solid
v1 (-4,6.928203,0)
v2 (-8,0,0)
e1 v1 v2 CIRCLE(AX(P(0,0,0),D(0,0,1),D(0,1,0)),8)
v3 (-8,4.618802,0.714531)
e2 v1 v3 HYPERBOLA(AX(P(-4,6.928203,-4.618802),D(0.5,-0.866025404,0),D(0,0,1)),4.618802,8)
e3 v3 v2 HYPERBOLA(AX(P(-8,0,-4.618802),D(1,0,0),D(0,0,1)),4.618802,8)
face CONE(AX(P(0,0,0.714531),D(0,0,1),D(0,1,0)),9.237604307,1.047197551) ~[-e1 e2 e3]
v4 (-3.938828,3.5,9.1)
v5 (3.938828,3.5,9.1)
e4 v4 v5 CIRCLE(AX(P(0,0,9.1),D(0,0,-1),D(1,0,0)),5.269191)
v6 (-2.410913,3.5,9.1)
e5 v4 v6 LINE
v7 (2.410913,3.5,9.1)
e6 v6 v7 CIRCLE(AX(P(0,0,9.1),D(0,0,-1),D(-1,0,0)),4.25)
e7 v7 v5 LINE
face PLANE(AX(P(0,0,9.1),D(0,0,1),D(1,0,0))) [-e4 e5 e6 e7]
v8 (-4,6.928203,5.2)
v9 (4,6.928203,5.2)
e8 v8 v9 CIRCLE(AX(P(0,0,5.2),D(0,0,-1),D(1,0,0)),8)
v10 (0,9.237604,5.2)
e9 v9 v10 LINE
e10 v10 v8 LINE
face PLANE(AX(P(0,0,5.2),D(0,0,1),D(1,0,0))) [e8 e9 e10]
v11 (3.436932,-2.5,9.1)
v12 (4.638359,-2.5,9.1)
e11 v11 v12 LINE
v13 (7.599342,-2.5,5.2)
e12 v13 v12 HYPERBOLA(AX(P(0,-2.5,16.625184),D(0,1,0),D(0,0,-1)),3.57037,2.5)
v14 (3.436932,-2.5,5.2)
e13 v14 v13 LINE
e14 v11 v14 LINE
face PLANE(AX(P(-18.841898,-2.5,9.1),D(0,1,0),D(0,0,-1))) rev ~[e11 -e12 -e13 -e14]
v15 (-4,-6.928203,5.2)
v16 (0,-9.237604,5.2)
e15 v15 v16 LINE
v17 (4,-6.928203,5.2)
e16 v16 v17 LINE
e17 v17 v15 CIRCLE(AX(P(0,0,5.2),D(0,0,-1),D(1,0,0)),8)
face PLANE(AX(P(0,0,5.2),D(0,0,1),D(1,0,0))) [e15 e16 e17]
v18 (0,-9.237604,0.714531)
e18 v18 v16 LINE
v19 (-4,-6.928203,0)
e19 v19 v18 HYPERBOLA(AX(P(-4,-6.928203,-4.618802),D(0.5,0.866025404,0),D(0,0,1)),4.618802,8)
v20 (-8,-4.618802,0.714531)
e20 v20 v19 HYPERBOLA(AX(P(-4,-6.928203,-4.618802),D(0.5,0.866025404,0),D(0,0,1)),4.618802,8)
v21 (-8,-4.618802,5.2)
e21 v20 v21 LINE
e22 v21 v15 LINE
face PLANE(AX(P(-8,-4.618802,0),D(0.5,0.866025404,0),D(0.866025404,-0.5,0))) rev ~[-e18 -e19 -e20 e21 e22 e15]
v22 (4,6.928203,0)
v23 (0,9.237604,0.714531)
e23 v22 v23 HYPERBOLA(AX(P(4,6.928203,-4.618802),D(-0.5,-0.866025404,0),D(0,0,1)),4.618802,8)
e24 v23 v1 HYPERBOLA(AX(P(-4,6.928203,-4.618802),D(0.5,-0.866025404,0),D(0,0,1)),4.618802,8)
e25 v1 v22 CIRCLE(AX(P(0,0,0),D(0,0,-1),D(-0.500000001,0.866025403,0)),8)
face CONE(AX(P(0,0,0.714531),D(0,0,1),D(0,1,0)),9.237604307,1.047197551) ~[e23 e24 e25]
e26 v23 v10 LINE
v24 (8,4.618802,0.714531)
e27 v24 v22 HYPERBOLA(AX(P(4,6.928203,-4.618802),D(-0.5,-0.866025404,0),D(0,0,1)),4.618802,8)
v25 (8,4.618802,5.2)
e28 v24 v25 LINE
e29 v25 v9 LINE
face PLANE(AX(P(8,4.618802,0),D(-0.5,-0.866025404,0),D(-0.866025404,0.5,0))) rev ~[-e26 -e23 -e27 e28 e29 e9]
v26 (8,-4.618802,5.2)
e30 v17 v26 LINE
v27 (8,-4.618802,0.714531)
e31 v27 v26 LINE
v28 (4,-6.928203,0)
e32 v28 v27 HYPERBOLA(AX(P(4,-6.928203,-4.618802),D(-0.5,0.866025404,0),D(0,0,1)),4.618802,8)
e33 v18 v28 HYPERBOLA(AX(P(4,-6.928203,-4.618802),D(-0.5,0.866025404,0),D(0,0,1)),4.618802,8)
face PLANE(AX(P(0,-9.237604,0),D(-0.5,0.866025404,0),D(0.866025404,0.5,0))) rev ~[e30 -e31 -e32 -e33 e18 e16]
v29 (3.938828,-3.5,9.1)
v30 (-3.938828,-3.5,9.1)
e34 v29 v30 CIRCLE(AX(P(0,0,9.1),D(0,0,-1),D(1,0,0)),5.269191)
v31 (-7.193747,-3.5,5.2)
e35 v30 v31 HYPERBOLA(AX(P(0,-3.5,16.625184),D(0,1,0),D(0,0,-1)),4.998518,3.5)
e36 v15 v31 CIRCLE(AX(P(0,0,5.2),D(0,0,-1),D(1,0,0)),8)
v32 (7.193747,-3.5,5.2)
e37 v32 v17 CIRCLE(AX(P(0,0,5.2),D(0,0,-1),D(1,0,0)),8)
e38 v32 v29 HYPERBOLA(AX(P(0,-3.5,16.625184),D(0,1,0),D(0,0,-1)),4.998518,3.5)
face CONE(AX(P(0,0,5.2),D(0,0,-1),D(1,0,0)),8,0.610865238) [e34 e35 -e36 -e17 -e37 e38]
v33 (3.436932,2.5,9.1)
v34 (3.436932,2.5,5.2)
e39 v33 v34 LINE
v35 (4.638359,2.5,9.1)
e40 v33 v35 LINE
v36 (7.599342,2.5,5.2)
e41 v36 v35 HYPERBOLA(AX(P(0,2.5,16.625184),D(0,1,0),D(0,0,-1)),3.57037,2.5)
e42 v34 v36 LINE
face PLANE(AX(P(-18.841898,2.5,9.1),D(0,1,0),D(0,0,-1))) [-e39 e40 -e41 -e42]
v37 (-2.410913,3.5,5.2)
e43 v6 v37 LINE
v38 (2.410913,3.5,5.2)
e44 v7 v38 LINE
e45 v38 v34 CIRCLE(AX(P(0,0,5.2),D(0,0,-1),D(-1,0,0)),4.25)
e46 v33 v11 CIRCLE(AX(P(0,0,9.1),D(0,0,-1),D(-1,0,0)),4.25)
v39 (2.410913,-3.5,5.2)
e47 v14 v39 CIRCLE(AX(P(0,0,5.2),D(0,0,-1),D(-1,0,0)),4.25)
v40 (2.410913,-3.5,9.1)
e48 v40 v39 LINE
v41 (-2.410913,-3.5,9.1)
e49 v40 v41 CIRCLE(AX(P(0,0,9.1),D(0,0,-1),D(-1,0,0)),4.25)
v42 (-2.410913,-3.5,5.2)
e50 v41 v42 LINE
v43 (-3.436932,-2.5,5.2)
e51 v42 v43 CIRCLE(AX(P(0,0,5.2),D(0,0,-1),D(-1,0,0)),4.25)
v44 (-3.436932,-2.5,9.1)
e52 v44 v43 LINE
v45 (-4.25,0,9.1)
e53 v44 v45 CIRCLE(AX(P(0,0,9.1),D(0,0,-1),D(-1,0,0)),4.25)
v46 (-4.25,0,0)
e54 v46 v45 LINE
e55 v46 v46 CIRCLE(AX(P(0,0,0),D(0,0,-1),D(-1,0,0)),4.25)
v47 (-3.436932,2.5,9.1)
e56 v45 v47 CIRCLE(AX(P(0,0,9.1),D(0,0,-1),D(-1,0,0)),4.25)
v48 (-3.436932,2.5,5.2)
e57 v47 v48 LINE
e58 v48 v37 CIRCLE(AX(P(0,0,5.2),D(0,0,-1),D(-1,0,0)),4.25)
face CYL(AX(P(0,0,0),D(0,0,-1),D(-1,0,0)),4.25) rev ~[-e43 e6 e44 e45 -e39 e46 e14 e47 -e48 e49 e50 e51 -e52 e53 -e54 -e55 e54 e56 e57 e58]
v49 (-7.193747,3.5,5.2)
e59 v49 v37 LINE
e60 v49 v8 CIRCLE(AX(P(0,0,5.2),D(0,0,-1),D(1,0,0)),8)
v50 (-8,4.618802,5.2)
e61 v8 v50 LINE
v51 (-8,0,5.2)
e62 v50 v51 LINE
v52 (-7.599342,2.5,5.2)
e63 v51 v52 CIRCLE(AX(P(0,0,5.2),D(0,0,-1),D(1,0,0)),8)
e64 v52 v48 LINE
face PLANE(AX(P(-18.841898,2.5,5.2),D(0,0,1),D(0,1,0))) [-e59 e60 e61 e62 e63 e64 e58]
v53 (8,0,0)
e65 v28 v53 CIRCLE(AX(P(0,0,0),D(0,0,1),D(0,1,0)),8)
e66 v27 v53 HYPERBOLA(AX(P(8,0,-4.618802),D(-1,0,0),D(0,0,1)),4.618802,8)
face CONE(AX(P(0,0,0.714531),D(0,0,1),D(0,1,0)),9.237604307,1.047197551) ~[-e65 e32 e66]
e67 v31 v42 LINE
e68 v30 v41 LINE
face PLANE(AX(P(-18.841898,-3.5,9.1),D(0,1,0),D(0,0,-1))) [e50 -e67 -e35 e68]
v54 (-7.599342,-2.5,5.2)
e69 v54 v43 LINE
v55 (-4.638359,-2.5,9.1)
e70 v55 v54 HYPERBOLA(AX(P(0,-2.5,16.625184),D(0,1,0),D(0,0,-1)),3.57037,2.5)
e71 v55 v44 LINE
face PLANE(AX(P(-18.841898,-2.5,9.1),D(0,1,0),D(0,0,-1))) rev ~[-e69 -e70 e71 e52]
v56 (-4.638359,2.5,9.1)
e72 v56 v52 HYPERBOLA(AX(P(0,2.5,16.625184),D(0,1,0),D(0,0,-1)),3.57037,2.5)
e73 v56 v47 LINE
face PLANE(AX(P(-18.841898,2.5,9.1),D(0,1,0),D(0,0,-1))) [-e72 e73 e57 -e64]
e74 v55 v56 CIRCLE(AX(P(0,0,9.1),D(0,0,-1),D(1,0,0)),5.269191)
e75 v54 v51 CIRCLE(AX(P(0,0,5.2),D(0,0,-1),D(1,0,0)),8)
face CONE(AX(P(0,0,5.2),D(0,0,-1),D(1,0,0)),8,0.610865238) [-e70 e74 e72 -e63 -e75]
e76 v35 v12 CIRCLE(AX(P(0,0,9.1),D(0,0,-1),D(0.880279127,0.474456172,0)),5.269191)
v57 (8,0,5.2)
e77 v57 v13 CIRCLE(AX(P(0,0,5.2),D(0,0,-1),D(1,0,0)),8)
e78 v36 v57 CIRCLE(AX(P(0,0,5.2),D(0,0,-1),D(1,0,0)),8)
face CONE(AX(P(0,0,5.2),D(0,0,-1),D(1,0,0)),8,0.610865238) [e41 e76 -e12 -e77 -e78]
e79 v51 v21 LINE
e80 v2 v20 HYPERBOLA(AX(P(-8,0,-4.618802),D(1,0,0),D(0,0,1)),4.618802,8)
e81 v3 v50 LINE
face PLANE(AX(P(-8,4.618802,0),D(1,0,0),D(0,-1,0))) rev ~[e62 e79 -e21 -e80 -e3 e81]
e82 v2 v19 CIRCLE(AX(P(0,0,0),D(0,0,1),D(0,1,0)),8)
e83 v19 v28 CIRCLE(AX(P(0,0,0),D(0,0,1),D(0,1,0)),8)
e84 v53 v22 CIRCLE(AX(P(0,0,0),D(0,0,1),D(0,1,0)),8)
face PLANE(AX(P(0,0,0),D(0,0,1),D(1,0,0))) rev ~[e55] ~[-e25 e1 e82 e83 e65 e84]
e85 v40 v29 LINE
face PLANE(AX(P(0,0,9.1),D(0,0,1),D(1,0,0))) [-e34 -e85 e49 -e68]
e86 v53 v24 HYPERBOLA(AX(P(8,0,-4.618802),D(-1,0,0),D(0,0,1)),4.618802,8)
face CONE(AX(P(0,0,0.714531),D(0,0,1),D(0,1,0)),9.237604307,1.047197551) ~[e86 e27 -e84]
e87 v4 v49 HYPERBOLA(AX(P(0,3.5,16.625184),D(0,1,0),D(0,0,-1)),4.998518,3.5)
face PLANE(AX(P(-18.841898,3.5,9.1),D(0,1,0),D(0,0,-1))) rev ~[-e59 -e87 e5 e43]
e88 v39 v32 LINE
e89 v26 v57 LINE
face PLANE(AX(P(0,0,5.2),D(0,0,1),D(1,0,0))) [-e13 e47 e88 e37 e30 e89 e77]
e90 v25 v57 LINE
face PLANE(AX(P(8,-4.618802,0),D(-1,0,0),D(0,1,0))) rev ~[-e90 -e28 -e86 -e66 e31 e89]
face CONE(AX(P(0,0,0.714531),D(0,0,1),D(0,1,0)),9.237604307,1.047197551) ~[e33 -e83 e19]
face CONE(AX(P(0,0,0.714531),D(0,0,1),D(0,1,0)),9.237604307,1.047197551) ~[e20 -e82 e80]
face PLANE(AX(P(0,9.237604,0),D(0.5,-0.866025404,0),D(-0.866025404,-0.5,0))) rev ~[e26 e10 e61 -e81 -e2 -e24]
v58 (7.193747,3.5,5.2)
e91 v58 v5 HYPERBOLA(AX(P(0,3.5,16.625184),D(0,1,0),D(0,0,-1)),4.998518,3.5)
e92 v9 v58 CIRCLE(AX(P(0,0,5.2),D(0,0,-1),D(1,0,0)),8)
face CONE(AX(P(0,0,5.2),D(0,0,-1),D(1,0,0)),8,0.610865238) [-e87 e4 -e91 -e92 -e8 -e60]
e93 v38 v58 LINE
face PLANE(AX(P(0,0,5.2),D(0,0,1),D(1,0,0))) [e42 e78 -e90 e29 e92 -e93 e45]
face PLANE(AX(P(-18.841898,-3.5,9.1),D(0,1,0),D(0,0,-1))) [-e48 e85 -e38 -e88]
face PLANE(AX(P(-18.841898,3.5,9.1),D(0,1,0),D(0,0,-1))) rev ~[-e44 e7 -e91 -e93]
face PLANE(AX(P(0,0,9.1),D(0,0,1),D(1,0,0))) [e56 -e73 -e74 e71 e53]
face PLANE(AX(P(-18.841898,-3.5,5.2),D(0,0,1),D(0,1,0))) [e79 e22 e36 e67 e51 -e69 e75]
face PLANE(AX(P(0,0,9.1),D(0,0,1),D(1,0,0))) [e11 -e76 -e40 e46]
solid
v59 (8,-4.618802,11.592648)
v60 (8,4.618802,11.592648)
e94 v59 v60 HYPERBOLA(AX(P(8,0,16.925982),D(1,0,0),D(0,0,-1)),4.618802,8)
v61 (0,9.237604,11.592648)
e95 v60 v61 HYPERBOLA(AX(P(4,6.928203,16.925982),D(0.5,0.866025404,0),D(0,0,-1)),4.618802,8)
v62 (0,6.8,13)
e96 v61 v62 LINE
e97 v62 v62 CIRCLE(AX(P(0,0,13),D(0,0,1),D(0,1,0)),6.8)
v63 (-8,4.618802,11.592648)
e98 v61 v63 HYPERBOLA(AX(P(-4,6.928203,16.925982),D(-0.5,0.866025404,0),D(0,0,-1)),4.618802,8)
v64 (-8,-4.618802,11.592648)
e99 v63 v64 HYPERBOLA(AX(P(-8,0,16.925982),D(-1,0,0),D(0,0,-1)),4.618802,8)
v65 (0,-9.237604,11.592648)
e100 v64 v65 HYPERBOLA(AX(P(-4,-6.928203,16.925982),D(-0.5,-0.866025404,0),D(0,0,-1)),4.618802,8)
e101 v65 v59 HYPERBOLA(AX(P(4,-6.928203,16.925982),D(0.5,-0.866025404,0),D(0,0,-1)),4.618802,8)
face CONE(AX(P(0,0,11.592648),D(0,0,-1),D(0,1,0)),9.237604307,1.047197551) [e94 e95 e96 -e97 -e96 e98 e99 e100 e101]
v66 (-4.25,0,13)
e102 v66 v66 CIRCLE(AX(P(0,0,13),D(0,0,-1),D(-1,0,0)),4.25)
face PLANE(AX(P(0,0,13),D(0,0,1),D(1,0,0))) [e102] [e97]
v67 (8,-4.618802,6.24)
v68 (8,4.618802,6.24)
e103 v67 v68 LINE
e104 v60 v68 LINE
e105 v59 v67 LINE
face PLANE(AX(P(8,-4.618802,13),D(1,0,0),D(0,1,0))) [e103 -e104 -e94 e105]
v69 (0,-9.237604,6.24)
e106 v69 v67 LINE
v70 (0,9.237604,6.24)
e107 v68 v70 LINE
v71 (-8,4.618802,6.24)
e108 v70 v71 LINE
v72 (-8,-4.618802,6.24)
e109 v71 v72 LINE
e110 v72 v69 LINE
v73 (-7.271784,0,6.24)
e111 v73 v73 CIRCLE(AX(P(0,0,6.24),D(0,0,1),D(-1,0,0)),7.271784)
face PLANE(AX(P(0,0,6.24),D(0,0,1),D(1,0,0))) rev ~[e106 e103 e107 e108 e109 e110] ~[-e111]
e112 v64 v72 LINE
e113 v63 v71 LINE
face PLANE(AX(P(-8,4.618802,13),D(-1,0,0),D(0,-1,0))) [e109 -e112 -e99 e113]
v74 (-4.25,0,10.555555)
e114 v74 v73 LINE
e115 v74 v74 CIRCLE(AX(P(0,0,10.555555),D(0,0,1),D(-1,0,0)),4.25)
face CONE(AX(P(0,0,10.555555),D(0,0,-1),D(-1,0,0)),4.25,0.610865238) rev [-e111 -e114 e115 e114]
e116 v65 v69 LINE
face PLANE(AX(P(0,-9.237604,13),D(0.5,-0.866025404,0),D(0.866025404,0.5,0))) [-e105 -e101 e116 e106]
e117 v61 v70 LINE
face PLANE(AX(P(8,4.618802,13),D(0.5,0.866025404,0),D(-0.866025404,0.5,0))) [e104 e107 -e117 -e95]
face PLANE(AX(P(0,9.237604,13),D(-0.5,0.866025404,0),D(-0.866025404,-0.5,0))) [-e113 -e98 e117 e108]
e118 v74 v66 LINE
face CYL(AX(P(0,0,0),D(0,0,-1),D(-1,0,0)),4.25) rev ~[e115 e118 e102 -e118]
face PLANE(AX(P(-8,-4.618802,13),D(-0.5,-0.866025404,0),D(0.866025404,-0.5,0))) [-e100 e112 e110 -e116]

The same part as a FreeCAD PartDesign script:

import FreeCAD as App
import Part
import Sketcher

V = App.Vector
Q = App.Units.Quantity

doc = App.newDocument("Part")
body = doc.addObject("PartDesign::Body", "Body")

sketch1 = body.newObject("Sketcher::SketchObject", "Sketch")
sketch1.AttachmentSupport = (doc.getObject("XY_Plane"), [""])
sketch1.MapMode = "FlatFace"
sketch1.addGeometry(Part.LineSegment(V(0, 9, 0), V(-8, 5, 0)), False)
sketch1.addGeometry(Part.LineSegment(V(-8, 5, 0), V(-8, -5, 0)), False)
sketch1.addGeometry(Part.LineSegment(V(-8, -5, 0), V(0, -9, 0)), False)
sketch1.addGeometry(Part.LineSegment(V(0, -9, 0), V(8, -5, 0)), False)
sketch1.addGeometry(Part.LineSegment(V(8, -5, 0), V(8, 5, 0)), False)
sketch1.addGeometry(Part.LineSegment(V(8, 5, 0), V(0, 9, 0)), False)
sketch1.addConstraint(Sketcher.Constraint("Coincident", 0, 2, 1, 1))
sketch1.addConstraint(Sketcher.Constraint("Coincident", 1, 2, 2, 1))
sketch1.addConstraint(Sketcher.Constraint("Coincident", 2, 2, 3, 1))
sketch1.addConstraint(Sketcher.Constraint("Coincident", 3, 2, 4, 1))
sketch1.addConstraint(Sketcher.Constraint("Coincident", 4, 2, 5, 1))
sketch1.addConstraint(Sketcher.Constraint("Coincident", 5, 2, 0, 1))
sketch1.addConstraint(Sketcher.Constraint("Vertical", 1))
sketch1.addConstraint(Sketcher.Constraint("Vertical", 4))
sketch1.addConstraint(Sketcher.Constraint("Symmetric", 0, 2, 3, 2, -1, 1))
sketch1.addConstraint(Sketcher.Constraint("Symmetric", 2, 2, 5, 2, -1, 1))
sketch1.addConstraint(Sketcher.Constraint("PointOnObject", 2, 2, -2))
sketch1.addConstraint(Sketcher.Constraint("Parallel", 2, 5))
sketch1.addConstraint(Sketcher.Constraint("Horizontal", 1, 2, 3, 2))
sketch1.addConstraint(Sketcher.Constraint("Angle", 0, Q("-150 deg")))
sketch1.addConstraint(Sketcher.Constraint("DistanceX", 0, 2, -1, 1, 8.0))
sketch1.addConstraint(Sketcher.Constraint("DistanceY", 1, 2, 1, 1, 9.237604))
pad1 = body.newObject("PartDesign::Pad", "Pad")
pad1.Profile = sketch1
pad1.Length = 5.2

sketch2 = body.newObject("Sketcher::SketchObject", "Sketch001")
sketch2.AttachmentSupport = (doc.getObject("XY_Plane"), [""])
sketch2.MapMode = "FlatFace"
sketch2.AttachmentOffset = App.Placement(V(0, 0, 5.2), App.Rotation())
sketch2.addGeometry(Part.Circle(V(0, 0, 0), V(0, 0, 1), 8), False)
sketch2.addConstraint(Sketcher.Constraint("Coincident", 0, 3, -1, 1))
sketch2.addConstraint(Sketcher.Constraint("Diameter", 0, 16.0))
pad2 = body.newObject("PartDesign::Pad", "Pad001")
pad2.Profile = sketch2
pad2.Length = 3.9
pad2.TaperAngle = -35
body2 = doc.addObject("PartDesign::Body", "Body001")

sketch3 = body2.newObject("Sketcher::SketchObject", "Sketch002")
sketch3.AttachmentSupport = (doc.getObject("XY_Plane001"), [""])
sketch3.MapMode = "FlatFace"
sketch3.AttachmentOffset = App.Placement(V(0, 0, 13), App.Rotation())
sketch3.addGeometry(Part.LineSegment(V(8, 5, 0), V(0, 9, 0)), False)
sketch3.addGeometry(Part.LineSegment(V(0, 9, 0), V(-8, 5, 0)), False)
sketch3.addGeometry(Part.LineSegment(V(-8, 5, 0), V(-8, -5, 0)), False)
sketch3.addGeometry(Part.LineSegment(V(-8, -5, 0), V(0, -9, 0)), False)
sketch3.addGeometry(Part.LineSegment(V(0, -9, 0), V(8, -5, 0)), False)
sketch3.addGeometry(Part.LineSegment(V(8, -5, 0), V(8, 5, 0)), False)
sketch3.addConstraint(Sketcher.Constraint("Coincident", 0, 2, 1, 1))
sketch3.addConstraint(Sketcher.Constraint("Coincident", 1, 2, 2, 1))
sketch3.addConstraint(Sketcher.Constraint("Coincident", 2, 2, 3, 1))
sketch3.addConstraint(Sketcher.Constraint("Coincident", 3, 2, 4, 1))
sketch3.addConstraint(Sketcher.Constraint("Coincident", 4, 2, 5, 1))
sketch3.addConstraint(Sketcher.Constraint("Coincident", 5, 2, 0, 1))
sketch3.addConstraint(Sketcher.Constraint("Vertical", 2))
sketch3.addConstraint(Sketcher.Constraint("Vertical", 5))
sketch3.addConstraint(Sketcher.Constraint("Symmetric", 0, 2, 3, 2, -1, 1))
sketch3.addConstraint(Sketcher.Constraint("Symmetric", 1, 2, 4, 2, -1, 1))
sketch3.addConstraint(Sketcher.Constraint("PointOnObject", 0, 2, -2))
sketch3.addConstraint(Sketcher.Constraint("Parallel", 0, 3))
sketch3.addConstraint(Sketcher.Constraint("Horizontal", 2, 2, 4, 2))
sketch3.addConstraint(Sketcher.Constraint("Angle", 0, Q("150 deg")))
sketch3.addConstraint(Sketcher.Constraint("DistanceX", 1, 2, -1, 1, 8.0))
sketch3.addConstraint(Sketcher.Constraint("DistanceY", 2, 2, 2, 1, 9.237604))
pad3 = body2.newObject("PartDesign::Pad", "Pad002")
pad3.Profile = sketch3
pad3.Length = 6.76
pad3.Reversed = True
body3 = doc.addObject("PartDesign::Body", "Body002")

sketch4 = body3.newObject("Sketcher::SketchObject", "Sketch003")
sketch4.AttachmentSupport = (doc.getObject("XY_Plane002"), [""])
sketch4.MapMode = "FlatFace"
sketch4.addGeometry(Part.Circle(V(0, 0, 0), V(0, 0, 1), 4.2), False)
sketch4.addConstraint(Sketcher.Constraint("Coincident", 0, 3, -1, 1))
sketch4.addConstraint(Sketcher.Constraint("Diameter", 0, 8.5))
pad4 = body3.newObject("PartDesign::Pad", "Pad003")
pad4.Profile = sketch4
pad4.Length = 18.841898
doc.recompute()

body4 = doc.addObject("PartDesign::Body", "Body003")
body4.BaseFeature = body3
boolean = body.newObject("PartDesign::Boolean", "Boolean")
boolean.Type = "Cut"
boolean.addObjects([body4])
doc.recompute()

sketch5 = body.newObject("Sketcher::SketchObject", "Sketch004")
sketch5.AttachmentSupport = (doc.getObject("YZ_Plane"), [""])
sketch5.MapMode = "FlatFace"
sketch5.addGeometry(Part.LineSegment(V(9.2, 0.7, 0), V(8, 0, 0)), False)
sketch5.addGeometry(Part.LineSegment(V(8, 0, 0), V(9.2, 0, 0)), False)
sketch5.addGeometry(Part.LineSegment(V(9.2, 0, 0), V(9.2, 0.7, 0)), False)
sketch5.addConstraint(Sketcher.Constraint("Coincident", 0, 2, 1, 1))
sketch5.addConstraint(Sketcher.Constraint("Coincident", 1, 2, 2, 1))
sketch5.addConstraint(Sketcher.Constraint("Coincident", 2, 2, 0, 1))
sketch5.addConstraint(Sketcher.Constraint("Horizontal", 1))
sketch5.addConstraint(Sketcher.Constraint("Vertical", 2))
sketch5.addConstraint(Sketcher.Constraint("PointOnObject", 0, 2, -1))
sketch5.addConstraint(Sketcher.Constraint("Angle", 0, Q("-150 deg")))
sketch5.addConstraint(Sketcher.Constraint("DistanceX", -1, 1, 0, 2, 8.0))
sketch5.addConstraint(Sketcher.Constraint("DistanceY", 2, 1, 2, 2, 0.714531))
groove = body.newObject("PartDesign::Groove", "Groove")
groove.Profile = sketch5
groove.ReferenceAxis = (sketch5, ["V_Axis"])
groove.Angle = 360

sketch6 = body.newObject("Sketcher::SketchObject", "Sketch005")
sketch6.AttachmentSupport = (doc.getObject("YZ_Plane"), [""])
sketch6.MapMode = "FlatFace"
sketch6.addGeometry(Part.LineSegment(V(3.5, 9.1, 0), V(2.5, 9.1, 0)), False)
sketch6.addGeometry(Part.LineSegment(V(2.5, 9.1, 0), V(2.5, 5.2, 0)), False)
sketch6.addGeometry(Part.LineSegment(V(2.5, 5.2, 0), V(3.5, 5.2, 0)), False)
sketch6.addGeometry(Part.LineSegment(V(3.5, 5.2, 0), V(3.5, 9.1, 0)), False)
sketch6.addGeometry(Part.LineSegment(V(-2.5, 9.1, 0), V(-3.5, 9.1, 0)), False)
sketch6.addGeometry(Part.LineSegment(V(-3.5, 9.1, 0), V(-3.5, 5.2, 0)), False)
sketch6.addGeometry(Part.LineSegment(V(-3.5, 5.2, 0), V(-2.5, 5.2, 0)), False)
sketch6.addGeometry(Part.LineSegment(V(-2.5, 5.2, 0), V(-2.5, 9.1, 0)), False)
sketch6.addConstraint(Sketcher.Constraint("Coincident", 0, 2, 1, 1))
sketch6.addConstraint(Sketcher.Constraint("Coincident", 1, 2, 2, 1))
sketch6.addConstraint(Sketcher.Constraint("Coincident", 2, 2, 3, 1))
sketch6.addConstraint(Sketcher.Constraint("Coincident", 3, 2, 0, 1))
sketch6.addConstraint(Sketcher.Constraint("Coincident", 4, 2, 5, 1))
sketch6.addConstraint(Sketcher.Constraint("Coincident", 5, 2, 6, 1))
sketch6.addConstraint(Sketcher.Constraint("Coincident", 6, 2, 7, 1))
sketch6.addConstraint(Sketcher.Constraint("Coincident", 7, 2, 4, 1))
sketch6.addConstraint(Sketcher.Constraint("Horizontal", 0))
sketch6.addConstraint(Sketcher.Constraint("Vertical", 1))
sketch6.addConstraint(Sketcher.Constraint("Horizontal", 2))
sketch6.addConstraint(Sketcher.Constraint("Vertical", 3))
sketch6.addConstraint(Sketcher.Constraint("Horizontal", 4))
sketch6.addConstraint(Sketcher.Constraint("Vertical", 5))
sketch6.addConstraint(Sketcher.Constraint("Horizontal", 6))
sketch6.addConstraint(Sketcher.Constraint("Vertical", 7))
sketch6.addConstraint(Sketcher.Constraint("Symmetric", 3, 2, 4, 2, -2))
sketch6.addConstraint(Sketcher.Constraint("Symmetric", 1, 2, 6, 2, -2))
sketch6.addConstraint(Sketcher.Constraint("DistanceX", 0, 2, 0, 1, 1.0))
sketch6.addConstraint(Sketcher.Constraint("DistanceY", 1, 2, 1, 1, 3.9))
sketch6.addConstraint(Sketcher.Constraint("DistanceX", 4, 2, 0, 2, 6.0))
sketch6.addConstraint(Sketcher.Constraint("DistanceY", -1, 1, 0, 2, 9.1))
pocket1 = body.newObject("PartDesign::Pocket", "Pocket")
pocket1.Profile = sketch6
pocket1.Type = "ThroughAll"
pocket1.Midplane = True
doc.recompute()

boolean2 = body2.newObject("PartDesign::Boolean", "Boolean001")
boolean2.Type = "Cut"
boolean2.addObjects([body3])

sketch7 = body2.newObject("Sketcher::SketchObject", "Sketch006")
sketch7.AttachmentSupport = (doc.getObject("XZ_Plane001"), [""])
sketch7.MapMode = "FlatFace"
sketch7.addGeometry(Part.LineSegment(V(0, 6.2, 0), V(0, 10.6, 0)), False)
sketch7.addGeometry(Part.LineSegment(V(0, 10.6, 0), V(4.2, 10.6, 0)), False)
sketch7.addGeometry(Part.LineSegment(V(4.2, 10.6, 0), V(7.3, 6.2, 0)), False)
sketch7.addGeometry(Part.LineSegment(V(7.3, 6.2, 0), V(0, 6.2, 0)), False)
sketch7.addConstraint(Sketcher.Constraint("Coincident", 0, 2, 1, 1))
sketch7.addConstraint(Sketcher.Constraint("Coincident", 1, 2, 2, 1))
sketch7.addConstraint(Sketcher.Constraint("Coincident", 2, 2, 3, 1))
sketch7.addConstraint(Sketcher.Constraint("Coincident", 3, 2, 0, 1))
sketch7.addConstraint(Sketcher.Constraint("Vertical", 0))
sketch7.addConstraint(Sketcher.Constraint("Horizontal", 1))
sketch7.addConstraint(Sketcher.Constraint("Horizontal", 3))
sketch7.addConstraint(Sketcher.Constraint("PointOnObject", 0, 2, -2))
sketch7.addConstraint(Sketcher.Constraint("Angle", 2, Q("-55 deg")))
sketch7.addConstraint(Sketcher.Constraint("DistanceX", 1, 1, 1, 2, 4.25))
sketch7.addConstraint(Sketcher.Constraint("DistanceY", -1, 1, 2, 2, 6.24))
sketch7.addConstraint(Sketcher.Constraint("Distance", 2, 5.26832))
groove2 = body2.newObject("PartDesign::Groove", "Groove001")
groove2.Profile = sketch7
groove2.ReferenceAxis = (sketch7, ["V_Axis"])
groove2.Angle = 360

sketch8 = body2.newObject("Sketcher::SketchObject", "Sketch007")
sketch8.AttachmentSupport = (doc.getObject("YZ_Plane001"), [""])
sketch8.MapMode = "FlatFace"
sketch8.addGeometry(Part.LineSegment(V(6.8, 13, 0), V(9.2, 11.6, 0)), False)
sketch8.addGeometry(Part.LineSegment(V(9.2, 11.6, 0), V(9.2, 13, 0)), False)
sketch8.addGeometry(Part.LineSegment(V(9.2, 13, 0), V(6.8, 13, 0)), False)
sketch8.addConstraint(Sketcher.Constraint("Coincident", 0, 2, 1, 1))
sketch8.addConstraint(Sketcher.Constraint("Coincident", 1, 2, 2, 1))
sketch8.addConstraint(Sketcher.Constraint("Coincident", 2, 2, 0, 1))
sketch8.addConstraint(Sketcher.Constraint("Vertical", 1))
sketch8.addConstraint(Sketcher.Constraint("Horizontal", 2))
sketch8.addConstraint(Sketcher.Constraint("Angle", 0, Q("-30 deg")))
sketch8.addConstraint(Sketcher.Constraint("DistanceY", -1, 1, 1, 2, 13.0))
sketch8.addConstraint(Sketcher.Constraint("DistanceX", -1, 1, 2, 2, 6.8))
sketch8.addConstraint(Sketcher.Constraint("DistanceY", 1, 1, 1, 2, 1.407352))
groove3 = body2.newObject("PartDesign::Groove", "Groove002")
groove3.Profile = sketch8
groove3.ReferenceAxis = (sketch8, ["V_Axis"])
groove3.Angle = 360

doc.recompute()
